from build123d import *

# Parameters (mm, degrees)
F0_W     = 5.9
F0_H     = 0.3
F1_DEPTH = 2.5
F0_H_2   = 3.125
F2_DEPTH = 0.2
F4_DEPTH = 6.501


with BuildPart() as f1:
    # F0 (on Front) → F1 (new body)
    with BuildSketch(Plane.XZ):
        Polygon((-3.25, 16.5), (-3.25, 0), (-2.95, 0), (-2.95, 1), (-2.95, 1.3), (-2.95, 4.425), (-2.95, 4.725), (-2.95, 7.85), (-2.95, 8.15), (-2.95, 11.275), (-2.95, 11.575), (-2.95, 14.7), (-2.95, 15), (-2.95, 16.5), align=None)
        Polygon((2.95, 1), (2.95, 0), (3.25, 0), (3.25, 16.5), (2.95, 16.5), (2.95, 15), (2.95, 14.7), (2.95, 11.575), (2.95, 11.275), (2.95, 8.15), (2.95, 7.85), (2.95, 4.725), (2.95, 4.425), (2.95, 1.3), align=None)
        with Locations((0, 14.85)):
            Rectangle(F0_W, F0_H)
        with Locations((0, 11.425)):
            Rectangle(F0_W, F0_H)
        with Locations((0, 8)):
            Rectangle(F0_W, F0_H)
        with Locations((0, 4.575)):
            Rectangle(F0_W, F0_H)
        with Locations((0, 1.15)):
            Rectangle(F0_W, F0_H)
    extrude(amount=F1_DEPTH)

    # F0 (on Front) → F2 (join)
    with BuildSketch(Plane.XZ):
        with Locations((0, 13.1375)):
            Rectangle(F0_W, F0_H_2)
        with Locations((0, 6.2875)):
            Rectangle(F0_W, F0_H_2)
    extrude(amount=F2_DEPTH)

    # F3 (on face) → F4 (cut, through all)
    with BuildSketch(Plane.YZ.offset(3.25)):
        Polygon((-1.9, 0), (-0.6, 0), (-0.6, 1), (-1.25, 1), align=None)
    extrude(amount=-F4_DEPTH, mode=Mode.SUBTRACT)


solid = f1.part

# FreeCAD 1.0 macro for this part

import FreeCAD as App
import Part
import Sketcher

V = App.Vector


def add_polygon(sketch, points):
    """Adds a closed chain of lines whose ends are joined by coincident constraints."""
    first, n = sketch.GeometryCount, len(points)
    for a, b in zip(points, points[1:] + points[:1]):
        sketch.addGeometry(Part.LineSegment(App.Vector(*a, 0), App.Vector(*b, 0)), False)
    for i in range(n):
        sketch.addConstraint(Sketcher.Constraint("Coincident", first + i, 2, first + (i + 1) % n, 1))

doc = App.newDocument("Part")
body = doc.addObject("PartDesign::Body", "Body")

# Sketch on XZ plane
sketch1 = doc.addObject("Sketcher::SketchObject", "Sketch")
body.addObject(sketch1)
sketch1.AttachmentSupport = (doc.XZ_Plane, [""])
sketch1.MapMode = "FlatFace"
add_polygon(sketch1, [(-3.25, 16.5), (-3.25, 0), (-2.95, 0), (-2.95, 1), (2.95, 1), (2.95, 0), (3.25, 0), (3.25, 16.5), (2.95, 16.5), (2.95, 15), (-2.95, 15), (-2.95, 16.5)])  # lines 0-11
add_polygon(sketch1, [(-2.95, 1.3), (-2.95, 4.42), (2.95, 4.42), (2.95, 1.3)])  # lines 12-15
add_polygon(sketch1, [(-2.95, 4.72), (-2.95, 7.85), (2.95, 7.85), (2.95, 4.72)])  # lines 16-19
add_polygon(sketch1, [(-2.95, 8.15), (-2.95, 11.28), (2.95, 11.28), (2.95, 8.15)])  # lines 20-23
add_polygon(sketch1, [(-2.95, 11.57), (-2.95, 14.7), (2.95, 14.7), (2.95, 11.57)])  # lines 24-27
sketch1.addConstraint(Sketcher.Constraint("Vertical", 0))
sketch1.addConstraint(Sketcher.Constraint("Horizontal", 1))
sketch1.addConstraint(Sketcher.Constraint("Vertical", 2))
sketch1.addConstraint(Sketcher.Constraint("Horizontal", 3))
sketch1.addConstraint(Sketcher.Constraint("Vertical", 4))
sketch1.addConstraint(Sketcher.Constraint("Horizontal", 5))
sketch1.addConstraint(Sketcher.Constraint("Vertical", 6))
sketch1.addConstraint(Sketcher.Constraint("Horizontal", 7))
sketch1.addConstraint(Sketcher.Constraint("Vertical", 8))
sketch1.addConstraint(Sketcher.Constraint("Horizontal", 9))
sketch1.addConstraint(Sketcher.Constraint("Vertical", 10))
sketch1.addConstraint(Sketcher.Constraint("Horizontal", 11))
sketch1.addConstraint(Sketcher.Constraint("Vertical", 12))
sketch1.addConstraint(Sketcher.Constraint("Horizontal", 13))
sketch1.addConstraint(Sketcher.Constraint("Vertical", 14))
sketch1.addConstraint(Sketcher.Constraint("Horizontal", 15))
sketch1.addConstraint(Sketcher.Constraint("Vertical", 16))
sketch1.addConstraint(Sketcher.Constraint("Horizontal", 17))
sketch1.addConstraint(Sketcher.Constraint("Vertical", 18))
sketch1.addConstraint(Sketcher.Constraint("Horizontal", 19))
sketch1.addConstraint(Sketcher.Constraint("Vertical", 20))
sketch1.addConstraint(Sketcher.Constraint("Horizontal", 21))
sketch1.addConstraint(Sketcher.Constraint("Vertical", 22))
sketch1.addConstraint(Sketcher.Constraint("Horizontal", 23))
sketch1.addConstraint(Sketcher.Constraint("Vertical", 24))
sketch1.addConstraint(Sketcher.Constraint("Horizontal", 25))
sketch1.addConstraint(Sketcher.Constraint("Vertical", 26))
sketch1.addConstraint(Sketcher.Constraint("Horizontal", 27))
sketch1.addConstraint(Sketcher.Constraint("Symmetric", 1, 2, 4, 2, -1, 1))
sketch1.addConstraint(Sketcher.Constraint("Symmetric", 0, 2, 5, 2, -2))
sketch1.addConstraint(Sketcher.Constraint("Symmetric", 7, 2, 10, 2, -2))
sketch1.addConstraint(Sketcher.Constraint("Vertical", 4, 2, 7, 2))
sketch1.addConstraint(Sketcher.Constraint("Vertical", 10, 2, 12, 2))
sketch1.addConstraint(Sketcher.Constraint("Vertical", 8, 2, 13, 2))
sketch1.addConstraint(Sketcher.Constraint("Vertical", 15, 2, 16, 2))
sketch1.addConstraint(Sketcher.Constraint("Vertical", 14, 2, 17, 2))
sketch1.addConstraint(Sketcher.Constraint("Vertical", 19, 2, 20, 2))
sketch1.addConstraint(Sketcher.Constraint("Vertical", 18, 2, 21, 2))
sketch1.addConstraint(Sketcher.Constraint("Vertical", 23, 2, 24, 2))
sketch1.addConstraint(Sketcher.Constraint("Vertical", 22, 2, 25, 2))
sketch1.addConstraint(Sketcher.Constraint("Equal", 14, 16))
sketch1.addConstraint(Sketcher.Constraint("Equal", 18, 20))
sketch1.addConstraint(Sketcher.Constraint("Equal", 22, 24))
sketch1.addConstraint(Sketcher.Constraint("DistanceY", 2, 1, 2, 2, 1.0))
sketch1.addConstraint(Sketcher.Constraint("DistanceX", 1, 1, 1, 2, 0.3))
sketch1.addConstraint(Sketcher.Constraint("DistanceX", 3, 1, 3, 2, 5.9))
sketch1.addConstraint(Sketcher.Constraint("DistanceY", 0, 2, 0, 1, 16.5))
sketch1.addConstraint(Sketcher.Constraint("DistanceY", 8, 2, 8, 1, 1.5))
sketch1.addConstraint(Sketcher.Constraint("DistanceY", -1, 1, 14, 2, 1.3))
sketch1.addConstraint(Sketcher.Constraint("DistanceY", -1, 1, 24, 2, 14.7))
sketch1.addConstraint(Sketcher.Constraint("DistanceY", 13, 2, 18, 2, 0.3))
sketch1.addConstraint(Sketcher.Constraint("DistanceY", 17, 2, 22, 2, 0.3))
sketch1.addConstraint(Sketcher.Constraint("DistanceY", 21, 2, 26, 2, 0.3))
pad1 = doc.addObject("PartDesign::Pad", "Pad")
body.addObject(pad1)
pad1.Profile = sketch1
pad1.Length = 2.5

# Sketch on XZ plane
sketch2 = doc.addObject("Sketcher::SketchObject", "Sketch001")
body.addObject(sketch2)
sketch2.AttachmentSupport = (doc.XZ_Plane, [""])
sketch2.MapMode = "FlatFace"
add_polygon(sketch2, [(-3, 14.7), (-3, 11.6), (3, 11.6), (3, 14.7)])  # lines 0-3
add_polygon(sketch2, [(-3, 7.8), (-3, 4.7), (3, 4.7), (3, 7.8)])  # lines 4-7
sketch2.addConstraint(Sketcher.Constraint("Vertical", 0))
sketch2.addConstraint(Sketcher.Constraint("Horizontal", 1))
sketch2.addConstraint(Sketcher.Constraint("Vertical", 2))
sketch2.addConstraint(Sketcher.Constraint("Horizontal", 3))
sketch2.addConstraint(Sketcher.Constraint("Vertical", 4))
sketch2.addConstraint(Sketcher.Constraint("Horizontal", 5))
sketch2.addConstraint(Sketcher.Constraint("Vertical", 6))
sketch2.addConstraint(Sketcher.Constraint("Horizontal", 7))
sketch2.addConstraint(Sketcher.Constraint("Vertical", 3, 2, 4, 2))
sketch2.addConstraint(Sketcher.Constraint("Vertical", 2, 2, 5, 2))
sketch2.addConstraint(Sketcher.Constraint("Equal", 2, 4))
sketch2.addConstraint(Sketcher.Constraint("DistanceX", 1, 1, 1, 2, 5.9))
sketch2.addConstraint(Sketcher.Constraint("DistanceY", -1, 1, 2, 2, 14.7))
sketch2.addConstraint(Sketcher.Constraint("DistanceY", 0, 2, 0, 1, 3.125))
sketch2.addConstraint(Sketcher.Constraint("DistanceX", 0, 2, -1, 1, 2.95))
sketch2.addConstraint(Sketcher.Constraint("DistanceY", -1, 1, 6, 2, 7.85))
pad2 = doc.addObject("PartDesign::Pad", "Pad001")
body.addObject(pad2)
pad2.Profile = sketch2
pad2.Length = 0.2

# Sketch on YZ plane
sketch3 = doc.addObject("Sketcher::SketchObject", "Sketch002")
body.addObject(sketch3)
sketch3.AttachmentSupport = (doc.YZ_Plane, [""])
sketch3.MapMode = "FlatFace"
sketch3.AttachmentOffset = App.Placement(V(0, 0, 3.25), App.Rotation())
add_polygon(sketch3, [(-1.9, 0), (-0.6, 0), (-0.6, 1), (-1.2, 1)])  # lines 0-3
sketch3.addConstraint(Sketcher.Constraint("Horizontal", 0))
sketch3.addConstraint(Sketcher.Constraint("Vertical", 1))
sketch3.addConstraint(Sketcher.Constraint("Horizontal", 2))
sketch3.addConstraint(Sketcher.Constraint("PointOnObject", 0, 2, -1))
sketch3.addConstraint(Sketcher.Constraint("DistanceY", 1, 1, 1, 2, 1.0))
sketch3.addConstraint(Sketcher.Constraint("DistanceX", 0, 1, 0, 2, 1.3))
sketch3.addConstraint(Sketcher.Constraint("DistanceX", 2, 2, 2, 1, 0.65))
sketch3.addConstraint(Sketcher.Constraint("DistanceX", 0, 2, -1, 1, 0.6))
pocket1 = doc.addObject("PartDesign::Pocket", "Pocket")
body.addObject(pocket1)
pocket1.Profile = sketch3
pocket1.Type = "ThroughAll"

doc.recompute()
